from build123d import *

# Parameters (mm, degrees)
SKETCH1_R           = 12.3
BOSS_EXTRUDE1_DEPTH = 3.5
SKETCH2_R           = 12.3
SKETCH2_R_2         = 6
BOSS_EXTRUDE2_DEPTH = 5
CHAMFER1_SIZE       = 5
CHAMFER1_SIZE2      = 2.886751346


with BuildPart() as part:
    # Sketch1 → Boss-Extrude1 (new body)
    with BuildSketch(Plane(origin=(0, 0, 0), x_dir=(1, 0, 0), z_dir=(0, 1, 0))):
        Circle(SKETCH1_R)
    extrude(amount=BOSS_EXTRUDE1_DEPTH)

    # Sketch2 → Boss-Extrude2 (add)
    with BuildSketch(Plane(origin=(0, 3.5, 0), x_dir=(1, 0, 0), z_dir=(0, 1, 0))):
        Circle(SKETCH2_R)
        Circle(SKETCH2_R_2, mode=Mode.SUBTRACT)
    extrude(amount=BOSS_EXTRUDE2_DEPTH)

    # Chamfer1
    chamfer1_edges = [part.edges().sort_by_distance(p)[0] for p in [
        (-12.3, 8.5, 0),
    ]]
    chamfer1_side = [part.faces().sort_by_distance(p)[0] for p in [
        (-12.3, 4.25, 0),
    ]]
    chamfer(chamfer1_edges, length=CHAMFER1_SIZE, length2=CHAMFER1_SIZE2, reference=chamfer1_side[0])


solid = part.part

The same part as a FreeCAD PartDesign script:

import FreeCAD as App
import Part
import Sketcher
from FreeCAD import Vector


def edges_at(feature, points):
    """Names of the edges that pass closest to the given points."""
    edges = feature.Shape.Edges
    near = lambda p: min(range(len(edges)), key=lambda i: edges[i].distToShape(Part.Vertex(*p))[0])
    return sorted({f"Edge{near(p) + 1}" for p in points})

doc = App.newDocument("Part")
body = doc.addObject("PartDesign::Body", "Body")

# Sketch on XZ plane
sketch1 = body.newObject("Sketcher::SketchObject", "Sketch")
sketch1.AttachmentSupport = (doc.getObject("XZ_Plane"), [""])
sketch1.MapMode = "FlatFace"
sketch1.addGeometry(Part.Circle(Vector(0, 0, 0), Vector(0, 0, 1), 12), False)
sketch1.addConstraint([
    Sketcher.Constraint("Coincident", 0, 3, -1, 1),
    Sketcher.Constraint("Diameter", 0, 24.6),
])
pad1 = body.newObject("PartDesign::Pad", "Pad")
pad1.Profile = sketch1
pad1.Length = 3.5
pad1.Reversed = True

# Sketch on XZ plane
sketch2 = body.newObject("Sketcher::SketchObject", "Sketch001")
sketch2.AttachmentSupport = (doc.getObject("XZ_Plane"), [""])
sketch2.MapMode = "FlatFace"
sketch2.AttachmentOffset = App.Placement(Vector(0, 0, -3.5), App.Rotation())
sketch2.addGeometry([
    Part.Circle(Vector(0, 0, 0), Vector(0, 0, 1), 12),
    Part.Circle(Vector(0, 0, 0), Vector(0, 0, 1), 6),
], False)
sketch2.addConstraint([
    Sketcher.Constraint("Coincident", 0, 3, -1, 1),
    Sketcher.Constraint("Coincident", 1, 3, -1, 1),
    Sketcher.Constraint("Diameter", 1, 12.0),
    Sketcher.Constraint("Diameter", 0, 24.6),
])
pad2 = body.newObject("PartDesign::Pad", "Pad001")
pad2.Profile = sketch2
pad2.Length = 5
pad2.Reversed = True
doc.recompute()

chamfer = body.newObject("PartDesign::Chamfer", "Chamfer")
chamfer.Base = (pad2, edges_at(pad2, [(-12.3, 8.5, 0)]))
chamfer.ChamferType = "Two distances"
chamfer.Size = 5
chamfer.Size2 = 2.886751

doc.recompute()
